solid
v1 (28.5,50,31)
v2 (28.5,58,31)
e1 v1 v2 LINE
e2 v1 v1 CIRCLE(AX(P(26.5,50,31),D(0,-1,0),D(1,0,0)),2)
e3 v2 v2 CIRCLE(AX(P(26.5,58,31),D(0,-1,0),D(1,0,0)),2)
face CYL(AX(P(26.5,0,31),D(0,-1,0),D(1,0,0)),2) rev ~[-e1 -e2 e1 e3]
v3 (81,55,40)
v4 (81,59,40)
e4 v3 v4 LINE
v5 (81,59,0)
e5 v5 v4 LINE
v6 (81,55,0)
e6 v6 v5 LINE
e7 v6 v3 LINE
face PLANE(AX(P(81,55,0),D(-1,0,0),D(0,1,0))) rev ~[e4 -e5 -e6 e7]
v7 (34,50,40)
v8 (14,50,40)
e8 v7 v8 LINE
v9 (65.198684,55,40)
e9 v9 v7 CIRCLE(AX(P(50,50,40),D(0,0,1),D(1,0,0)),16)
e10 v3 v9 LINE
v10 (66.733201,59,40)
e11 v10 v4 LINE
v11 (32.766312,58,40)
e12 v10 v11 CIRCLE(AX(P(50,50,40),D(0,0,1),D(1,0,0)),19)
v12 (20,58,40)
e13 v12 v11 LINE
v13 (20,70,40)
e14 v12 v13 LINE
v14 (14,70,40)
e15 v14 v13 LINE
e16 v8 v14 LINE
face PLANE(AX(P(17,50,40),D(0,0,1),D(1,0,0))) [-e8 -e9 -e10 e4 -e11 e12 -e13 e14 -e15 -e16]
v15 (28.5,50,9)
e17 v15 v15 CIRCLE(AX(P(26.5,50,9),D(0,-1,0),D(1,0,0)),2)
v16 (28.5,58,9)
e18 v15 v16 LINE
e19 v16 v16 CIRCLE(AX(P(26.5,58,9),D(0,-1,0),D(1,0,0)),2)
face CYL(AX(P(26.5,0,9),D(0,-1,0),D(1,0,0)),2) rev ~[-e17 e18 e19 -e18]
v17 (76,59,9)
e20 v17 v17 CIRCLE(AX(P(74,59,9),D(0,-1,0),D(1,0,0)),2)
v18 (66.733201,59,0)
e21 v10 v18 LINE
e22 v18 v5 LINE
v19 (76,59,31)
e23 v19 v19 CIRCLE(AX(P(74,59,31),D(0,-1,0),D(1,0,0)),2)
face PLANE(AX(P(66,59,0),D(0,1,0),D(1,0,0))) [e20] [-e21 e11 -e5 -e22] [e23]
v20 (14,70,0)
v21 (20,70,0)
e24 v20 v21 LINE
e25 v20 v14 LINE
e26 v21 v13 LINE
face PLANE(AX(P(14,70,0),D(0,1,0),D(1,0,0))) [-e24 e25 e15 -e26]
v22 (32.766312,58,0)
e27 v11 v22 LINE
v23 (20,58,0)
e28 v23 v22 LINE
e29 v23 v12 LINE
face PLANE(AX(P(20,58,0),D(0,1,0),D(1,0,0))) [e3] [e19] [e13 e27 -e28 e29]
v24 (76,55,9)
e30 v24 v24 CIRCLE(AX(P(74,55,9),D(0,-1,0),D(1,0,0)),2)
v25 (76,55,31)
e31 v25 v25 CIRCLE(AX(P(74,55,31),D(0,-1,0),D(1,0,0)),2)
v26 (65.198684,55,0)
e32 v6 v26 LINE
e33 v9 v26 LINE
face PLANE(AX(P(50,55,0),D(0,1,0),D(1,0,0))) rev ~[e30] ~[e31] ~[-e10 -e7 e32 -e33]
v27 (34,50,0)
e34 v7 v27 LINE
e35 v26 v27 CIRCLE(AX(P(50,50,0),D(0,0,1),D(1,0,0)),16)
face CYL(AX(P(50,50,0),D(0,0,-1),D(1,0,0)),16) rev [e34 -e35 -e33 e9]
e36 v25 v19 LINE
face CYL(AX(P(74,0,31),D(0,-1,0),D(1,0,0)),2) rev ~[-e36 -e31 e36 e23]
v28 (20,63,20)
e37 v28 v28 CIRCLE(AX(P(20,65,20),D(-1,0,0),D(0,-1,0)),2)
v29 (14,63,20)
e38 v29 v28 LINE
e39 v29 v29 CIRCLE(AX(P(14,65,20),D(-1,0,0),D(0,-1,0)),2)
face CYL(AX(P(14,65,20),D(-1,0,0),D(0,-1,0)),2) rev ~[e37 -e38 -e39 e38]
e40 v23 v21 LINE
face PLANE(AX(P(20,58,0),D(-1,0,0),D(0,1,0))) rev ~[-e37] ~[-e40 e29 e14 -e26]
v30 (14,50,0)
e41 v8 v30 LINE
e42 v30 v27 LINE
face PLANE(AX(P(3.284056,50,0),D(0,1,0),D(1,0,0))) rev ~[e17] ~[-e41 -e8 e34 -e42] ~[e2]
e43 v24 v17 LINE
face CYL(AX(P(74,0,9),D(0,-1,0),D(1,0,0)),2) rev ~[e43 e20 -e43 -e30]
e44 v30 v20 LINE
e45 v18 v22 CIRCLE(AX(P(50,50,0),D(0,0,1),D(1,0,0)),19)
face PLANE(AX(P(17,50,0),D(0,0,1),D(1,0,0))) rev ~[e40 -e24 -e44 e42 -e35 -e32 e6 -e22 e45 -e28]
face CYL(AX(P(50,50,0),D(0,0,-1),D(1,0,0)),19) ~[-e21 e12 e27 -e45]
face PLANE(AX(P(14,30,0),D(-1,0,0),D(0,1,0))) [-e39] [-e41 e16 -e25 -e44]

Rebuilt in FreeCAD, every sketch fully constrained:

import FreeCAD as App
import Part
import Sketcher
Q = App.Units.Quantity


def add_polygon(sketch, points):
    """Adds a closed chain of lines whose ends are joined by coincident constraints."""
    first, n = sketch.GeometryCount, len(points)
    for a, b in zip(points, points[1:] + points[:1]):
        sketch.addGeometry(Part.LineSegment(App.Vector(*a, 0), App.Vector(*b, 0)), False)
    for i in range(n):
        sketch.addConstraint(Sketcher.Constraint("Coincident", first + i, 2, first + (i + 1) % n, 1))

doc = App.newDocument("Part")
params = doc.addObject("Spreadsheet::Sheet", "Params")
for row, (alias, value) in enumerate([
    ("sketch1_diameter", "38 mm"),
    ("sketch1_diameter2", "32 mm"),
    ("pad1_length", "40 mm"),
    ("sketch2_width", "38 mm"),
    ("sketch2_height", "10 mm"),
    ("pocket1_length", "40 mm"),
    ("sketch3_width", "15 mm"),
    ("sketch3_height", "4 mm"),
    ("pad2_length", "40 mm"),
    ("sketch4_diameter", "4 mm"),
    ("sketch5_width", "6 mm"),
    ("sketch5_width2", "13 mm"),
    ("sketch5_height", "40 mm"),
    ("sketch5_height2", "12 mm"),
    ("pad3_length", "40 mm"),
    ("sketch6_diameter", "4 mm"),
    ("pocket3_length", "6 mm"),
    ("sketch7_width", "90 mm"),
    ("sketch7_height", "30 mm"),
    ("sketch8_diameter", "4 mm"),
], start=1):
    params.set(f"A{row}", alias)
    params.set(f"B{row}", "=" + value)
    params.setAlias(f"B{row}", alias)

body = doc.addObject("PartDesign::Body", "Body")

sketch1 = body.newObject("Sketcher::SketchObject", "Sketch")
sketch1.AttachmentSupport = (doc.getObject("XY_Plane"), [""])
sketch1.MapMode = "FlatFace"
sketch1.addGeometry([
    Part.Circle(App.Vector(50, 50, 0), App.Vector(0, 0, 1), 19),
    Part.Circle(App.Vector(50, 50, 0), App.Vector(0, 0, 1), 16),
], False)
sketch1.addConstraint([
    Sketcher.Constraint("Coincident", 1, 3, 0, 3),
    Sketcher.Constraint("Diameter", 0, Q("38 mm")),
    Sketcher.Constraint("Diameter", 1, Q("32 mm")),
    Sketcher.Constraint("DistanceX", -1, 1, 0, 3, Q("50 mm")),
    Sketcher.Constraint("DistanceY", -1, 1, 0, 3, Q("50 mm")),
])
sketch1.setExpression("Constraints[1]", "Params.sketch1_diameter")
sketch1.setExpression("Constraints[2]", "Params.sketch1_diameter2")
pad1 = body.newObject("PartDesign::Pad", "Pad")
pad1.Profile = sketch1
pad1.setExpression("Length", "Params.pad1_length")

sketch2 = body.newObject("Sketcher::SketchObject", "Sketch001")
sketch2.AttachmentSupport = (doc.getObject("XY_Plane"), [""])
sketch2.MapMode = "FlatFace"
add_polygon(sketch2, [(50, 55), (50, 45), (88, 45), (88, 55)])
sketch2.addConstraint([
    Sketcher.Constraint("Vertical", 0),
    Sketcher.Constraint("Horizontal", 1),
    Sketcher.Constraint("Vertical", 2),
    Sketcher.Constraint("Horizontal", 3),
    Sketcher.Constraint("DistanceX", 1, 1, 1, 2, Q("38 mm")),
    Sketcher.Constraint("DistanceY", 0, 2, 0, 1, Q("10 mm")),
    Sketcher.Constraint("DistanceX", -1, 1, 0, 2, Q("50 mm")),
    Sketcher.Constraint("DistanceY", -1, 1, 0, 2, Q("45 mm")),
])
sketch2.setExpression("Constraints[8]", "Params.sketch2_width")
sketch2.setExpression("Constraints[9]", "Params.sketch2_height")
pocket1 = body.newObject("PartDesign::Pocket", "Pocket")
pocket1.Profile = sketch2
pocket1.setExpression("Length", "Params.pocket1_length")
pocket1.Reversed = True

sketch3 = body.newObject("Sketcher::SketchObject", "Sketch002")
sketch3.AttachmentSupport = (doc.getObject("XY_Plane"), [""])
sketch3.MapMode = "FlatFace"
add_polygon(sketch3, [(66, 59), (66, 55), (81, 55), (81, 59)])
add_polygon(sketch3, [(66, 45), (66, 41), (81, 41), (81, 45)])
sketch3.addConstraint([
    Sketcher.Constraint("Vertical", 0),
    Sketcher.Constraint("Horizontal", 1),
    Sketcher.Constraint("Vertical", 2),
    Sketcher.Constraint("Horizontal", 3),
    Sketcher.Constraint("Vertical", 4),
    Sketcher.Constraint("Horizontal", 5),
    Sketcher.Constraint("Vertical", 6),
    Sketcher.Constraint("Horizontal", 7),
    Sketcher.Constraint("Vertical", 3, 2, 4, 2),
    Sketcher.Constraint("Vertical", 2, 2, 5, 2),
    Sketcher.Constraint("Equal", 2, 4),
    Sketcher.Constraint("DistanceX", 1, 1, 1, 2, Q("15 mm")),
    Sketcher.Constraint("DistanceY", 0, 2, 0, 1, Q("4 mm")),
    Sketcher.Constraint("DistanceX", -1, 1, 0, 2, Q("66 mm")),
    Sketcher.Constraint("DistanceY", -1, 1, 0, 2, Q("55 mm")),
    Sketcher.Constraint("DistanceY", -1, 1, 4, 2, Q("41 mm")),
])
sketch3.setExpression("Constraints[19]", "Params.sketch3_width")
sketch3.setExpression("Constraints[20]", "Params.sketch3_height")
pad2 = body.newObject("PartDesign::Pad", "Pad001")
pad2.Profile = sketch3
pad2.setExpression("Length", "Params.pad2_length")

sketch4 = body.newObject("Sketcher::SketchObject", "Sketch003")
sketch4.AttachmentSupport = (doc.getObject("XZ_Plane"), [""])
sketch4.MapMode = "FlatFace"
sketch4.addGeometry([
    Part.Circle(App.Vector(74, 31, 0), App.Vector(0, 0, 1), 2),
    Part.Circle(App.Vector(74, 9, 0), App.Vector(0, 0, 1), 2),
], False)
sketch4.addConstraint([
    Sketcher.Constraint("Equal", 0, 1),
    Sketcher.Constraint("Vertical", 0, 3, 1, 3),
    Sketcher.Constraint("Diameter", 0, Q("4 mm")),
    Sketcher.Constraint("DistanceX", -1, 1, 0, 3, Q("74 mm")),
    Sketcher.Constraint("DistanceY", -1, 1, 0, 3, Q("31 mm")),
    Sketcher.Constraint("DistanceY", -1, 1, 1, 3, Q("9 mm")),
])
sketch4.setExpression("Constraints[2]", "Params.sketch4_diameter")
pocket2 = body.newObject("PartDesign::Pocket", "Pocket001")
pocket2.Profile = sketch4
pocket2.Type = "ThroughAll"

sketch5 = body.newObject("Sketcher::SketchObject", "Sketch004")
sketch5.AttachmentSupport = (doc.getObject("XY_Plane"), [""])
sketch5.MapMode = "FlatFace"
add_polygon(sketch5, [(14, 70), (14, 30), (20, 30), (20, 42), (33, 42), (33, 58), (20, 58), (20, 70)])
sketch5.addConstraint([
    Sketcher.Constraint("Vertical", 0),
    Sketcher.Constraint("Horizontal", 1),
    Sketcher.Constraint("Vertical", 2),
    Sketcher.Constraint("Horizontal", 3),
    Sketcher.Constraint("Vertical", 4),
    Sketcher.Constraint("Horizontal", 5),
    Sketcher.Constraint("Vertical", 6),
    Sketcher.Constraint("Horizontal", 7),
    Sketcher.Constraint("Vertical", 2, 2, 5, 2),
    Sketcher.Constraint("Equal", 2, 6),
    Sketcher.Constraint("DistanceX", 1, 1, 1, 2, Q("6 mm")),
    Sketcher.Constraint("DistanceX", 3, 1, 3, 2, Q("13 mm")),
    Sketcher.Constraint("DistanceY", 0, 2, 0, 1, Q("40 mm")),
    Sketcher.Constraint("DistanceY", 2, 1, 2, 2, Q("12 mm")),
    Sketcher.Constraint("DistanceX", -1, 1, 0, 2, Q("14 mm")),
    Sketcher.Constraint("DistanceY", -1, 1, 0, 2, Q("30 mm")),
])
sketch5.setExpression("Constraints[18]", "Params.sketch5_width")
sketch5.setExpression("Constraints[19]", "Params.sketch5_width2")
sketch5.setExpression("Constraints[20]", "Params.sketch5_height")
sketch5.setExpression("Constraints[21]", "Params.sketch5_height2")
pad3 = body.newObject("PartDesign::Pad", "Pad002")
pad3.Profile = sketch5
pad3.setExpression("Length", "Params.pad3_length")

sketch6 = body.newObject("Sketcher::SketchObject", "Sketch005")
sketch6.AttachmentSupport = (doc.getObject("YZ_Plane"), [""])
sketch6.MapMode = "FlatFace"
sketch6.AttachmentOffset = App.Placement(App.Vector(0, 0, 14), App.Rotation())
sketch6.addGeometry([
    Part.Circle(App.Vector(65, 20, 0), App.Vector(0, 0, 1), 2),
    Part.Circle(App.Vector(35, 20, 0), App.Vector(0, 0, 1), 2),
], False)
sketch6.addConstraint([
    Sketcher.Constraint("Equal", 0, 1),
    Sketcher.Constraint("Horizontal", 0, 3, 1, 3),
    Sketcher.Constraint("Diameter", 0, Q("4 mm")),
    Sketcher.Constraint("DistanceX", -1, 1, 0, 3, Q("65 mm")),
    Sketcher.Constraint("DistanceY", -1, 1, 0, 3, Q("20 mm")),
    Sketcher.Constraint("DistanceX", -1, 1, 1, 3, Q("35 mm")),
])
sketch6.setExpression("Constraints[2]", "Params.sketch6_diameter")
pocket3 = body.newObject("PartDesign::Pocket", "Pocket002")
pocket3.Profile = sketch6
pocket3.setExpression("Length", "Params.pocket3_length")
pocket3.Reversed = True

sketch7 = body.newObject("Sketcher::SketchObject", "Sketch006")
sketch7.AttachmentSupport = (doc.getObject("XY_Plane"), [""])
sketch7.MapMode = "FlatFace"
add_polygon(sketch7, [(3, 50), (3, 20), (93, 20), (93, 50)])
sketch7.addConstraint([
    Sketcher.Constraint("Vertical", 0),
    Sketcher.Constraint("Horizontal", 1),
    Sketcher.Constraint("Vertical", 2),
    Sketcher.Constraint("Horizontal", 3),
    Sketcher.Constraint("DistanceX", 1, 1, 1, 2, Q("90 mm")),
    Sketcher.Constraint("DistanceY", 0, 2, 0, 1, Q("30 mm")),
    Sketcher.Constraint("DistanceY", -1, 1, 0, 2, Q("20 mm")),
    Sketcher.Constraint("DistanceX", -1, 1, 0, 2, Q("3.284056 mm")),
])
sketch7.setExpression("Constraints[8]", "Params.sketch7_width")
sketch7.setExpression("Constraints[9]", "Params.sketch7_height")
pocket4 = body.newObject("PartDesign::Pocket", "Pocket003")
pocket4.Profile = sketch7
pocket4.Type = "ThroughAll"
pocket4.Reversed = True

sketch8 = body.newObject("Sketcher::SketchObject", "Sketch007")
sketch8.AttachmentSupport = (doc.getObject("XZ_Plane"), [""])
sketch8.MapMode = "FlatFace"
sketch8.addGeometry([
    Part.Circle(App.Vector(26.5, 31, 0), App.Vector(0, 0, 1), 2),
    Part.Circle(App.Vector(26.5, 9, 0), App.Vector(0, 0, 1), 2),
], False)
sketch8.addConstraint([
    Sketcher.Constraint("Equal", 0, 1),
    Sketcher.Constraint("Vertical", 0, 3, 1, 3),
    Sketcher.Constraint("Diameter", 0, Q("4 mm")),
    Sketcher.Constraint("DistanceY", -1, 1, 0, 3, Q("31 mm")),
    Sketcher.Constraint("DistanceY", -1, 1, 1, 3, Q("9 mm")),
    Sketcher.Constraint("DistanceX", -1, 1, 0, 3, Q("26.5 mm")),
])
sketch8.setExpression("Constraints[2]", "Params.sketch8_diameter")
pocket5 = body.newObject("PartDesign::Pocket", "Pocket004")
pocket5.Profile = sketch8
pocket5.Type = "ThroughAll"

doc.recompute()
